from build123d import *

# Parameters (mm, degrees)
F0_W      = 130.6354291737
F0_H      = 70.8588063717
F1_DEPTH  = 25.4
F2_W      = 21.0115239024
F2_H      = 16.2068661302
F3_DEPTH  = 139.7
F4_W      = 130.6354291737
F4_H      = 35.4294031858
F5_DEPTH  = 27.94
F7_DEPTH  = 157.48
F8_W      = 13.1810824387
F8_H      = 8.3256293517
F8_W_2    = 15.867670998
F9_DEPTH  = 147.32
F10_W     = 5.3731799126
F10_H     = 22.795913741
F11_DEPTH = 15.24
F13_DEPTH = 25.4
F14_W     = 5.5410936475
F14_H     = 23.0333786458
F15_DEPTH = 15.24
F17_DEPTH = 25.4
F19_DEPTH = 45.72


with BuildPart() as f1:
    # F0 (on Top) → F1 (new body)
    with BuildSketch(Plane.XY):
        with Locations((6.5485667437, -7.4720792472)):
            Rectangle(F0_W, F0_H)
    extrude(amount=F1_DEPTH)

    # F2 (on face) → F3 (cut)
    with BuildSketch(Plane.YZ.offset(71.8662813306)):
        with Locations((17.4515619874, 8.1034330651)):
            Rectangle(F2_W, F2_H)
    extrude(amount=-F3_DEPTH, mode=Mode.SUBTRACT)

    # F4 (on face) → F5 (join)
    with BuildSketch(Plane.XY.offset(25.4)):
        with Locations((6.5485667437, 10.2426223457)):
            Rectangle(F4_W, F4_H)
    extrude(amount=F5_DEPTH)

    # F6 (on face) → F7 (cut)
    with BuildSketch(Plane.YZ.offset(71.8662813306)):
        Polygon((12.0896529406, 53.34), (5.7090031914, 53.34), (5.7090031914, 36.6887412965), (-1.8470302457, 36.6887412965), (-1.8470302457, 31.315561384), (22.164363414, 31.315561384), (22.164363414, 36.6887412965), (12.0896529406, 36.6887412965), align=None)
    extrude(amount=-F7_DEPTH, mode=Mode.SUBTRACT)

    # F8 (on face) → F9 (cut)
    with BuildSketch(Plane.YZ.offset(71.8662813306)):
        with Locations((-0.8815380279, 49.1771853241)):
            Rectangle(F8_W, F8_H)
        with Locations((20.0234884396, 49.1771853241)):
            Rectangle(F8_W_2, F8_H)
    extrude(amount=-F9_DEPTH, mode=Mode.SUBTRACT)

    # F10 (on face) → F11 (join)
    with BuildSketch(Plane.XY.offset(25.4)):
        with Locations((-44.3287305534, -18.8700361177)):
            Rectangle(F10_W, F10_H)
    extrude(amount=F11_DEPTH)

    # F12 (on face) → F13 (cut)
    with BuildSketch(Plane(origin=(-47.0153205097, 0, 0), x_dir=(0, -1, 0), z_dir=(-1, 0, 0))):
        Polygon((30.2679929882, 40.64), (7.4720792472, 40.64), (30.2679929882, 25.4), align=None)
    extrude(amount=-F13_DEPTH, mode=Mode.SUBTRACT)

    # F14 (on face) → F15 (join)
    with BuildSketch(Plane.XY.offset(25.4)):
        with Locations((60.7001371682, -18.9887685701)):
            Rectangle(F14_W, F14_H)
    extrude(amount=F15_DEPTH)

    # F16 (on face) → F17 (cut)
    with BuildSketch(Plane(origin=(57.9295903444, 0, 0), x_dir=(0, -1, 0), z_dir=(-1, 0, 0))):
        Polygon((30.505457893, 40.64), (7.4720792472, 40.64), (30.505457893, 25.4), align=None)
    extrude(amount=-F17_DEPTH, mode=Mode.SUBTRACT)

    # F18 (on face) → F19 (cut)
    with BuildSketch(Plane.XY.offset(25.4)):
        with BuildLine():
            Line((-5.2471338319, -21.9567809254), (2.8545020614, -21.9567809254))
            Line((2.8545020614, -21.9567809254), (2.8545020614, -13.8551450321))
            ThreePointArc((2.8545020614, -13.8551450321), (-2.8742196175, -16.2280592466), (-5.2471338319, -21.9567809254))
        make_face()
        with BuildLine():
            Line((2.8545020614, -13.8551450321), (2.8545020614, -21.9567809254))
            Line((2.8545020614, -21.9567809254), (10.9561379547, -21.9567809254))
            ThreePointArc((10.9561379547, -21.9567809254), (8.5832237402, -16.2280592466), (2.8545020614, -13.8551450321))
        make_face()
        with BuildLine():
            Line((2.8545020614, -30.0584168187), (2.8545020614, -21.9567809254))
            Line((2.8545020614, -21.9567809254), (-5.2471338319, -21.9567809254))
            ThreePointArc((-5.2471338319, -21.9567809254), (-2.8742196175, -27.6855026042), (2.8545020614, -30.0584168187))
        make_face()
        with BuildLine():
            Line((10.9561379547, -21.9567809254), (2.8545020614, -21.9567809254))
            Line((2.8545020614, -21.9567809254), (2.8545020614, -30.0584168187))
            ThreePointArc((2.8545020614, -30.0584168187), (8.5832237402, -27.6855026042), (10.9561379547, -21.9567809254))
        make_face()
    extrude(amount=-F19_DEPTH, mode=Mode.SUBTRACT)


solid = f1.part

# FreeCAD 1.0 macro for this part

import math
import FreeCAD as App
import Part
import Sketcher
from FreeCAD import Vector
Q = App.Units.Quantity


def add_polygon(sketch, points):
    """Adds a closed chain of lines whose ends are joined by coincident constraints."""
    first, n = sketch.GeometryCount, len(points)
    for a, b in zip(points, points[1:] + points[:1]):
        sketch.addGeometry(Part.LineSegment(App.Vector(*a, 0), App.Vector(*b, 0)), False)
    for i in range(n):
        sketch.addConstraint(Sketcher.Constraint("Coincident", first + i, 2, first + (i + 1) % n, 1))

doc = App.newDocument("Part")
params = doc.addObject("Spreadsheet::Sheet", "Params")
for row, (alias, value) in enumerate([
    ("pad1_length", "1 in"),
    ("pocket1_length", "5.5 in"),
    ("pad2_length", "1.1 in"),
    ("pocket2_length", "6.2 in"),
    ("pocket3_length", "5.8 in"),
    ("pad3_length", "0.6 in"),
    ("sketch7_height", "0.6 in"),
    ("pocket4_length", "1 in"),
    ("pad4_length", "0.6 in"),
    ("sketch9_height", "0.6 in"),
    ("pocket5_length", "1 in"),
    ("pocket6_length", "1.8 in"),
], start=1):
    params.set(f"A{row}", alias)
    params.set(f"B{row}", "=" + value)
    params.setAlias(f"B{row}", alias)

body = doc.addObject("PartDesign::Body", "Body")

# Sketch on XY plane
sketch1 = body.newObject("Sketcher::SketchObject", "Sketch")
sketch1.AttachmentSupport = (doc.getObject("XY_Plane"), [""])
sketch1.MapMode = "FlatFace"
add_polygon(sketch1, [(-58.769148, 27.957324), (-58.769148, -42.901482), (71.866281, -42.901482), (71.866281, 27.957324)])  # lines 0-3
sketch1.addConstraint([
    Sketcher.Constraint("Vertical", 0),
    Sketcher.Constraint("Horizontal", 1),
    Sketcher.Constraint("Vertical", 2),
    Sketcher.Constraint("Horizontal", 3),
    Sketcher.Constraint("DistanceX", 1, 1, 1, 2, Q("130.635429 mm")),
    Sketcher.Constraint("DistanceY", 0, 2, 0, 1, Q("70.858806 mm")),
    Sketcher.Constraint("DistanceX", -1, 1, 1, 2, Q("71.866281 mm")),
    Sketcher.Constraint("DistanceY", 0, 2, -1, 1, Q("42.901482 mm")),
])
pad1 = body.newObject("PartDesign::Pad", "Pad")
pad1.Profile = sketch1
pad1.setExpression("Length", "Params.pad1_length")

# Sketch on YZ plane
sketch2 = body.newObject("Sketcher::SketchObject", "Sketch001")
sketch2.AttachmentSupport = (doc.getObject("YZ_Plane"), [""])
sketch2.MapMode = "FlatFace"
sketch2.AttachmentOffset = App.Placement(Vector(0, 0, 71.866281), App.Rotation())
add_polygon(sketch2, [(6.9458, 16.206866), (6.9458, 0), (27.957324, 0), (27.957324, 16.206866)])  # lines 0-3
sketch2.addConstraint([
    Sketcher.Constraint("Vertical", 0),
    Sketcher.Constraint("Horizontal", 1),
    Sketcher.Constraint("Vertical", 2),
    Sketcher.Constraint("Horizontal", 3),
    Sketcher.Constraint("PointOnObject", 0, 2, -1),
    Sketcher.Constraint("DistanceX", -1, 1, 0, 2, Q("6.9458 mm")),
    Sketcher.Constraint("DistanceX", 1, 1, 1, 2, Q("21.011524 mm")),
    Sketcher.Constraint("DistanceY", 0, 2, 0, 1, Q("16.206866 mm")),
])
pocket1 = body.newObject("PartDesign::Pocket", "Pocket")
pocket1.Profile = sketch2
pocket1.setExpression("Length", "Params.pocket1_length")

# Sketch on XY plane
sketch3 = body.newObject("Sketcher::SketchObject", "Sketch002")
sketch3.AttachmentSupport = (doc.getObject("XY_Plane"), [""])
sketch3.MapMode = "FlatFace"
sketch3.AttachmentOffset = App.Placement(Vector(0, 0, 1 * 25.4), App.Rotation())
add_polygon(sketch3, [(-58.769148, 27.957324), (-58.769148, -7.472079), (71.866281, -7.472079), (71.866281, 27.957324)])  # lines 0-3
sketch3.addConstraint([
    Sketcher.Constraint("Vertical", 0),
    Sketcher.Constraint("Horizontal", 1),
    Sketcher.Constraint("Vertical", 2),
    Sketcher.Constraint("Horizontal", 3),
    Sketcher.Constraint("DistanceX", 1, 1, 1, 2, Q("130.635429 mm")),
    Sketcher.Constraint("DistanceY", 0, 2, 0, 1, Q("35.429403 mm")),
    Sketcher.Constraint("DistanceY", 0, 2, -1, 1, Q("7.472079 mm")),
    Sketcher.Constraint("DistanceX", -1, 1, 1, 2, Q("71.866281 mm")),
])
pad2 = body.newObject("PartDesign::Pad", "Pad001")
pad2.Profile = sketch3
pad2.setExpression("Length", "Params.pad2_length")

# Sketch on YZ plane
sketch4 = body.newObject("Sketcher::SketchObject", "Sketch003")
sketch4.AttachmentSupport = (doc.getObject("YZ_Plane"), [""])
sketch4.MapMode = "FlatFace"
sketch4.AttachmentOffset = App.Placement(Vector(0, 0, 71.866281), App.Rotation())
add_polygon(sketch4, [(12.089653, 53.34), (5.709003, 53.34), (5.709003, 36.688741), (-1.84703, 36.688741), (-1.84703, 31.315561), (22.164363, 31.315561), (22.164363, 36.688741), (12.089653, 36.688741)])  # lines 0-7
sketch4.addConstraint([
    Sketcher.Constraint("Horizontal", 0),
    Sketcher.Constraint("Vertical", 1),
    Sketcher.Constraint("Horizontal", 2),
    Sketcher.Constraint("Vertical", 3),
    Sketcher.Constraint("Horizontal", 4),
    Sketcher.Constraint("Vertical", 5),
    Sketcher.Constraint("Horizontal", 6),
    Sketcher.Constraint("Vertical", 7),
    Sketcher.Constraint("Horizontal", 2, 2, 5, 2),
    Sketcher.Constraint("DistanceY", -1, 1, 0, 2, Q("2.1 in")),
    Sketcher.Constraint("DistanceX", 0, 2, 0, 1, Q("6.38065 mm")),
    Sketcher.Constraint("DistanceX", 6, 2, 6, 1, Q("10.07471 mm")),
    Sketcher.Constraint("DistanceY", 1, 2, 1, 1, Q("16.651259 mm")),
    Sketcher.Constraint("DistanceY", 3, 2, 3, 1, Q("5.37318 mm")),
    Sketcher.Constraint("DistanceX", 2, 2, 2, 1, Q("7.556033 mm")),
    Sketcher.Constraint("DistanceX", 2, 2, -1, 1, Q("1.84703 mm")),
])
pocket2 = body.newObject("PartDesign::Pocket", "Pocket001")
pocket2.Profile = sketch4
pocket2.setExpression("Length", "Params.pocket2_length")

# Sketch on YZ plane
sketch5 = body.newObject("Sketcher::SketchObject", "Sketch004")
sketch5.AttachmentSupport = (doc.getObject("YZ_Plane"), [""])
sketch5.MapMode = "FlatFace"
sketch5.AttachmentOffset = App.Placement(Vector(0, 0, 71.866281), App.Rotation())
add_polygon(sketch5, [(-7.472079, 53.34), (-7.472079, 45.014371), (5.709003, 45.014371), (5.709003, 53.34)])  # lines 0-3
add_polygon(sketch5, [(12.089653, 53.34), (12.089653, 45.014371), (27.957324, 45.014371), (27.957324, 53.34)])  # lines 4-7
sketch5.addConstraint([
    Sketcher.Constraint("Vertical", 0),
    Sketcher.Constraint("Horizontal", 1),
    Sketcher.Constraint("Vertical", 2),
    Sketcher.Constraint("Horizontal", 3),
    Sketcher.Constraint("Vertical", 4),
    Sketcher.Constraint("Horizontal", 5),
    Sketcher.Constraint("Vertical", 6),
    Sketcher.Constraint("Horizontal", 7),
    Sketcher.Constraint("Horizontal", 1, 2, 4, 2),
    Sketcher.Constraint("Horizontal", 3, 2, 6, 2),
    Sketcher.Constraint("DistanceY", -1, 1, 2, 2, Q("2.1 in")),
    Sketcher.Constraint("DistanceX", 5, 1, 5, 2, Q("15.867671 mm")),
    Sketcher.Constraint("DistanceY", 0, 2, 0, 1, Q("8.325629 mm")),
    Sketcher.Constraint("DistanceX", 1, 1, 1, 2, Q("13.181082 mm")),
    Sketcher.Constraint("DistanceX", 0, 2, -1, 1, Q("7.472079 mm")),
    Sketcher.Constraint("DistanceX", 1, 2, 4, 2, Q("6.38065 mm")),
])
pocket3 = body.newObject("PartDesign::Pocket", "Pocket002")
pocket3.Profile = sketch5
pocket3.setExpression("Length", "Params.pocket3_length")

# Sketch on XY plane
sketch6 = body.newObject("Sketcher::SketchObject", "Sketch005")
sketch6.AttachmentSupport = (doc.getObject("XY_Plane"), [""])
sketch6.MapMode = "FlatFace"
sketch6.AttachmentOffset = App.Placement(Vector(0, 0, 1 * 25.4), App.Rotation())
add_polygon(sketch6, [(-47.015321, -7.472079), (-47.015321, -30.267993), (-41.642141, -30.267993), (-41.642141, -7.472079)])  # lines 0-3
sketch6.addConstraint([
    Sketcher.Constraint("Vertical", 0),
    Sketcher.Constraint("Horizontal", 1),
    Sketcher.Constraint("Vertical", 2),
    Sketcher.Constraint("Horizontal", 3),
    Sketcher.Constraint("DistanceX", 1, 1, 1, 2, Q("5.37318 mm")),
    Sketcher.Constraint("DistanceY", 0, 2, 0, 1, Q("22.795914 mm")),
    Sketcher.Constraint("DistanceX", 0, 2, -1, 1, Q("47.015321 mm")),
    Sketcher.Constraint("DistanceY", 2, 2, -1, 1, Q("7.472079 mm")),
])
pad3 = body.newObject("PartDesign::Pad", "Pad002")
pad3.Profile = sketch6
pad3.setExpression("Length", "Params.pad3_length")

# Sketch on YZ plane
sketch7 = body.newObject("Sketcher::SketchObject", "Sketch006")
sketch7.AttachmentSupport = (doc.getObject("YZ_Plane"), [""])
sketch7.MapMode = "FlatFace"
sketch7.AttachmentOffset = App.Placement(Vector(0, 0, -47.015321), App.Rotation())
add_polygon(sketch7, [(-30.267993, 40.64), (-7.472079, 40.64), (-30.267993, 25.4)])  # lines 0-2
sketch7.addConstraint([
    Sketcher.Constraint("Horizontal", 0),
    Sketcher.Constraint("Vertical", 2),
    Sketcher.Constraint("DistanceY", 2, 1, 2, 2, Q("0.6 in")),
    Sketcher.Constraint("DistanceY", -1, 1, 1, 2, Q("1 in")),
    Sketcher.Constraint("Distance", 1, Q("27.421001 mm")),
    Sketcher.Constraint("DistanceX", 0, 2, -1, 1, Q("7.472079 mm")),
])
sketch7.setExpression("Constraints[5]", "Params.sketch7_height")
pocket4 = body.newObject("PartDesign::Pocket", "Pocket003")
pocket4.Profile = sketch7
pocket4.setExpression("Length", "Params.pocket4_length")
pocket4.Reversed = True

# Sketch on XY plane
sketch8 = body.newObject("Sketcher::SketchObject", "Sketch007")
sketch8.AttachmentSupport = (doc.getObject("XY_Plane"), [""])
sketch8.MapMode = "FlatFace"
sketch8.AttachmentOffset = App.Placement(Vector(0, 0, 1 * 25.4), App.Rotation())
add_polygon(sketch8, [(57.92959, -7.472079), (57.92959, -30.505458), (63.470684, -30.505458), (63.470684, -7.472079)])  # lines 0-3
sketch8.addConstraint([
    Sketcher.Constraint("Vertical", 0),
    Sketcher.Constraint("Horizontal", 1),
    Sketcher.Constraint("Vertical", 2),
    Sketcher.Constraint("Horizontal", 3),
    Sketcher.Constraint("DistanceY", 0, 2, 0, 1, Q("23.033379 mm")),
    Sketcher.Constraint("DistanceX", 1, 1, 1, 2, Q("5.541094 mm")),
    Sketcher.Constraint("DistanceX", -1, 1, 0, 2, Q("57.92959 mm")),
    Sketcher.Constraint("DistanceY", 2, 2, -1, 1, Q("7.472079 mm")),
])
pad4 = body.newObject("PartDesign::Pad", "Pad003")
pad4.Profile = sketch8
pad4.setExpression("Length", "Params.pad4_length")

# Sketch on YZ plane
sketch9 = body.newObject("Sketcher::SketchObject", "Sketch008")
sketch9.AttachmentSupport = (doc.getObject("YZ_Plane"), [""])
sketch9.MapMode = "FlatFace"
sketch9.AttachmentOffset = App.Placement(Vector(0, 0, 57.92959), App.Rotation())
add_polygon(sketch9, [(-30.505458, 40.64), (-7.472079, 40.64), (-30.505458, 25.4)])  # lines 0-2
sketch9.addConstraint([
    Sketcher.Constraint("Horizontal", 0),
    Sketcher.Constraint("Vertical", 2),
    Sketcher.Constraint("DistanceY", 2, 1, 2, 2, Q("0.6 in")),
    Sketcher.Constraint("DistanceY", -1, 1, 1, 2, Q("1 in")),
    Sketcher.Constraint("DistanceX", 0, 1, 0, 2, Q("23.033379 mm")),
    Sketcher.Constraint("DistanceX", 0, 2, -1, 1, Q("7.472079 mm")),
])
sketch9.setExpression("Constraints[5]", "Params.sketch9_height")
pocket5 = body.newObject("PartDesign::Pocket", "Pocket004")
pocket5.Profile = sketch9
pocket5.setExpression("Length", "Params.pocket5_length")
pocket5.Reversed = True

# Sketch on XY plane
sketch10 = body.newObject("Sketcher::SketchObject", "Sketch009")
sketch10.AttachmentSupport = (doc.getObject("XY_Plane"), [""])
sketch10.MapMode = "FlatFace"
sketch10.AttachmentOffset = App.Placement(Vector(0, 0, 1 * 25.4), App.Rotation())
sketch10.addGeometry([
    Part.ArcOfCircle(Part.Circle(Vector(2.854502, -21.956781, 0), Vector(0, 0, 1), 8.101636), math.radians(0), math.radians(90)),
    Part.ArcOfCircle(Part.Circle(Vector(2.854502, -21.956781, 0), Vector(0, 0, 1), 8.101636), math.radians(90), math.radians(180)),
    Part.ArcOfCircle(Part.Circle(Vector(2.854502, -21.956781, 0), Vector(0, 0, 1), 8.101636), math.radians(180), math.radians(270)),
    Part.ArcOfCircle(Part.Circle(Vector(2.854502, -21.956781, 0), Vector(0, 0, 1), 8.101636), math.radians(-90), math.radians(0)),
], False)
sketch10.addConstraint([
    Sketcher.Constraint("Tangent", 0, 2, 1, 1),
    Sketcher.Constraint("Tangent", 1, 2, 2, 1),
    Sketcher.Constraint("Tangent", 2, 2, 3, 1),
    Sketcher.Constraint("Tangent", 3, 2, 0, 1),
    Sketcher.Constraint("Equal", 0, 1),
    Sketcher.Constraint("Horizontal", 3, 3, 1, 2),
    Sketcher.Constraint("Horizontal", 1, 2, 3, 2),
    Sketcher.Constraint("Vertical", 3, 3, 0, 2),
    Sketcher.Constraint("Vertical", 0, 2, 2, 2),
    Sketcher.Constraint("Radius", 0, Q("8.101636 mm")),
    Sketcher.Constraint("DistanceY", 0, 3, -1, 1, Q("21.956781 mm")),
    Sketcher.Constraint("DistanceX", -1, 1, 0, 3, Q("2.854502 mm")),
])
pocket6 = body.newObject("PartDesign::Pocket", "Pocket005")
pocket6.Profile = sketch10
pocket6.setExpression("Length", "Params.pocket6_length")

doc.recompute()
